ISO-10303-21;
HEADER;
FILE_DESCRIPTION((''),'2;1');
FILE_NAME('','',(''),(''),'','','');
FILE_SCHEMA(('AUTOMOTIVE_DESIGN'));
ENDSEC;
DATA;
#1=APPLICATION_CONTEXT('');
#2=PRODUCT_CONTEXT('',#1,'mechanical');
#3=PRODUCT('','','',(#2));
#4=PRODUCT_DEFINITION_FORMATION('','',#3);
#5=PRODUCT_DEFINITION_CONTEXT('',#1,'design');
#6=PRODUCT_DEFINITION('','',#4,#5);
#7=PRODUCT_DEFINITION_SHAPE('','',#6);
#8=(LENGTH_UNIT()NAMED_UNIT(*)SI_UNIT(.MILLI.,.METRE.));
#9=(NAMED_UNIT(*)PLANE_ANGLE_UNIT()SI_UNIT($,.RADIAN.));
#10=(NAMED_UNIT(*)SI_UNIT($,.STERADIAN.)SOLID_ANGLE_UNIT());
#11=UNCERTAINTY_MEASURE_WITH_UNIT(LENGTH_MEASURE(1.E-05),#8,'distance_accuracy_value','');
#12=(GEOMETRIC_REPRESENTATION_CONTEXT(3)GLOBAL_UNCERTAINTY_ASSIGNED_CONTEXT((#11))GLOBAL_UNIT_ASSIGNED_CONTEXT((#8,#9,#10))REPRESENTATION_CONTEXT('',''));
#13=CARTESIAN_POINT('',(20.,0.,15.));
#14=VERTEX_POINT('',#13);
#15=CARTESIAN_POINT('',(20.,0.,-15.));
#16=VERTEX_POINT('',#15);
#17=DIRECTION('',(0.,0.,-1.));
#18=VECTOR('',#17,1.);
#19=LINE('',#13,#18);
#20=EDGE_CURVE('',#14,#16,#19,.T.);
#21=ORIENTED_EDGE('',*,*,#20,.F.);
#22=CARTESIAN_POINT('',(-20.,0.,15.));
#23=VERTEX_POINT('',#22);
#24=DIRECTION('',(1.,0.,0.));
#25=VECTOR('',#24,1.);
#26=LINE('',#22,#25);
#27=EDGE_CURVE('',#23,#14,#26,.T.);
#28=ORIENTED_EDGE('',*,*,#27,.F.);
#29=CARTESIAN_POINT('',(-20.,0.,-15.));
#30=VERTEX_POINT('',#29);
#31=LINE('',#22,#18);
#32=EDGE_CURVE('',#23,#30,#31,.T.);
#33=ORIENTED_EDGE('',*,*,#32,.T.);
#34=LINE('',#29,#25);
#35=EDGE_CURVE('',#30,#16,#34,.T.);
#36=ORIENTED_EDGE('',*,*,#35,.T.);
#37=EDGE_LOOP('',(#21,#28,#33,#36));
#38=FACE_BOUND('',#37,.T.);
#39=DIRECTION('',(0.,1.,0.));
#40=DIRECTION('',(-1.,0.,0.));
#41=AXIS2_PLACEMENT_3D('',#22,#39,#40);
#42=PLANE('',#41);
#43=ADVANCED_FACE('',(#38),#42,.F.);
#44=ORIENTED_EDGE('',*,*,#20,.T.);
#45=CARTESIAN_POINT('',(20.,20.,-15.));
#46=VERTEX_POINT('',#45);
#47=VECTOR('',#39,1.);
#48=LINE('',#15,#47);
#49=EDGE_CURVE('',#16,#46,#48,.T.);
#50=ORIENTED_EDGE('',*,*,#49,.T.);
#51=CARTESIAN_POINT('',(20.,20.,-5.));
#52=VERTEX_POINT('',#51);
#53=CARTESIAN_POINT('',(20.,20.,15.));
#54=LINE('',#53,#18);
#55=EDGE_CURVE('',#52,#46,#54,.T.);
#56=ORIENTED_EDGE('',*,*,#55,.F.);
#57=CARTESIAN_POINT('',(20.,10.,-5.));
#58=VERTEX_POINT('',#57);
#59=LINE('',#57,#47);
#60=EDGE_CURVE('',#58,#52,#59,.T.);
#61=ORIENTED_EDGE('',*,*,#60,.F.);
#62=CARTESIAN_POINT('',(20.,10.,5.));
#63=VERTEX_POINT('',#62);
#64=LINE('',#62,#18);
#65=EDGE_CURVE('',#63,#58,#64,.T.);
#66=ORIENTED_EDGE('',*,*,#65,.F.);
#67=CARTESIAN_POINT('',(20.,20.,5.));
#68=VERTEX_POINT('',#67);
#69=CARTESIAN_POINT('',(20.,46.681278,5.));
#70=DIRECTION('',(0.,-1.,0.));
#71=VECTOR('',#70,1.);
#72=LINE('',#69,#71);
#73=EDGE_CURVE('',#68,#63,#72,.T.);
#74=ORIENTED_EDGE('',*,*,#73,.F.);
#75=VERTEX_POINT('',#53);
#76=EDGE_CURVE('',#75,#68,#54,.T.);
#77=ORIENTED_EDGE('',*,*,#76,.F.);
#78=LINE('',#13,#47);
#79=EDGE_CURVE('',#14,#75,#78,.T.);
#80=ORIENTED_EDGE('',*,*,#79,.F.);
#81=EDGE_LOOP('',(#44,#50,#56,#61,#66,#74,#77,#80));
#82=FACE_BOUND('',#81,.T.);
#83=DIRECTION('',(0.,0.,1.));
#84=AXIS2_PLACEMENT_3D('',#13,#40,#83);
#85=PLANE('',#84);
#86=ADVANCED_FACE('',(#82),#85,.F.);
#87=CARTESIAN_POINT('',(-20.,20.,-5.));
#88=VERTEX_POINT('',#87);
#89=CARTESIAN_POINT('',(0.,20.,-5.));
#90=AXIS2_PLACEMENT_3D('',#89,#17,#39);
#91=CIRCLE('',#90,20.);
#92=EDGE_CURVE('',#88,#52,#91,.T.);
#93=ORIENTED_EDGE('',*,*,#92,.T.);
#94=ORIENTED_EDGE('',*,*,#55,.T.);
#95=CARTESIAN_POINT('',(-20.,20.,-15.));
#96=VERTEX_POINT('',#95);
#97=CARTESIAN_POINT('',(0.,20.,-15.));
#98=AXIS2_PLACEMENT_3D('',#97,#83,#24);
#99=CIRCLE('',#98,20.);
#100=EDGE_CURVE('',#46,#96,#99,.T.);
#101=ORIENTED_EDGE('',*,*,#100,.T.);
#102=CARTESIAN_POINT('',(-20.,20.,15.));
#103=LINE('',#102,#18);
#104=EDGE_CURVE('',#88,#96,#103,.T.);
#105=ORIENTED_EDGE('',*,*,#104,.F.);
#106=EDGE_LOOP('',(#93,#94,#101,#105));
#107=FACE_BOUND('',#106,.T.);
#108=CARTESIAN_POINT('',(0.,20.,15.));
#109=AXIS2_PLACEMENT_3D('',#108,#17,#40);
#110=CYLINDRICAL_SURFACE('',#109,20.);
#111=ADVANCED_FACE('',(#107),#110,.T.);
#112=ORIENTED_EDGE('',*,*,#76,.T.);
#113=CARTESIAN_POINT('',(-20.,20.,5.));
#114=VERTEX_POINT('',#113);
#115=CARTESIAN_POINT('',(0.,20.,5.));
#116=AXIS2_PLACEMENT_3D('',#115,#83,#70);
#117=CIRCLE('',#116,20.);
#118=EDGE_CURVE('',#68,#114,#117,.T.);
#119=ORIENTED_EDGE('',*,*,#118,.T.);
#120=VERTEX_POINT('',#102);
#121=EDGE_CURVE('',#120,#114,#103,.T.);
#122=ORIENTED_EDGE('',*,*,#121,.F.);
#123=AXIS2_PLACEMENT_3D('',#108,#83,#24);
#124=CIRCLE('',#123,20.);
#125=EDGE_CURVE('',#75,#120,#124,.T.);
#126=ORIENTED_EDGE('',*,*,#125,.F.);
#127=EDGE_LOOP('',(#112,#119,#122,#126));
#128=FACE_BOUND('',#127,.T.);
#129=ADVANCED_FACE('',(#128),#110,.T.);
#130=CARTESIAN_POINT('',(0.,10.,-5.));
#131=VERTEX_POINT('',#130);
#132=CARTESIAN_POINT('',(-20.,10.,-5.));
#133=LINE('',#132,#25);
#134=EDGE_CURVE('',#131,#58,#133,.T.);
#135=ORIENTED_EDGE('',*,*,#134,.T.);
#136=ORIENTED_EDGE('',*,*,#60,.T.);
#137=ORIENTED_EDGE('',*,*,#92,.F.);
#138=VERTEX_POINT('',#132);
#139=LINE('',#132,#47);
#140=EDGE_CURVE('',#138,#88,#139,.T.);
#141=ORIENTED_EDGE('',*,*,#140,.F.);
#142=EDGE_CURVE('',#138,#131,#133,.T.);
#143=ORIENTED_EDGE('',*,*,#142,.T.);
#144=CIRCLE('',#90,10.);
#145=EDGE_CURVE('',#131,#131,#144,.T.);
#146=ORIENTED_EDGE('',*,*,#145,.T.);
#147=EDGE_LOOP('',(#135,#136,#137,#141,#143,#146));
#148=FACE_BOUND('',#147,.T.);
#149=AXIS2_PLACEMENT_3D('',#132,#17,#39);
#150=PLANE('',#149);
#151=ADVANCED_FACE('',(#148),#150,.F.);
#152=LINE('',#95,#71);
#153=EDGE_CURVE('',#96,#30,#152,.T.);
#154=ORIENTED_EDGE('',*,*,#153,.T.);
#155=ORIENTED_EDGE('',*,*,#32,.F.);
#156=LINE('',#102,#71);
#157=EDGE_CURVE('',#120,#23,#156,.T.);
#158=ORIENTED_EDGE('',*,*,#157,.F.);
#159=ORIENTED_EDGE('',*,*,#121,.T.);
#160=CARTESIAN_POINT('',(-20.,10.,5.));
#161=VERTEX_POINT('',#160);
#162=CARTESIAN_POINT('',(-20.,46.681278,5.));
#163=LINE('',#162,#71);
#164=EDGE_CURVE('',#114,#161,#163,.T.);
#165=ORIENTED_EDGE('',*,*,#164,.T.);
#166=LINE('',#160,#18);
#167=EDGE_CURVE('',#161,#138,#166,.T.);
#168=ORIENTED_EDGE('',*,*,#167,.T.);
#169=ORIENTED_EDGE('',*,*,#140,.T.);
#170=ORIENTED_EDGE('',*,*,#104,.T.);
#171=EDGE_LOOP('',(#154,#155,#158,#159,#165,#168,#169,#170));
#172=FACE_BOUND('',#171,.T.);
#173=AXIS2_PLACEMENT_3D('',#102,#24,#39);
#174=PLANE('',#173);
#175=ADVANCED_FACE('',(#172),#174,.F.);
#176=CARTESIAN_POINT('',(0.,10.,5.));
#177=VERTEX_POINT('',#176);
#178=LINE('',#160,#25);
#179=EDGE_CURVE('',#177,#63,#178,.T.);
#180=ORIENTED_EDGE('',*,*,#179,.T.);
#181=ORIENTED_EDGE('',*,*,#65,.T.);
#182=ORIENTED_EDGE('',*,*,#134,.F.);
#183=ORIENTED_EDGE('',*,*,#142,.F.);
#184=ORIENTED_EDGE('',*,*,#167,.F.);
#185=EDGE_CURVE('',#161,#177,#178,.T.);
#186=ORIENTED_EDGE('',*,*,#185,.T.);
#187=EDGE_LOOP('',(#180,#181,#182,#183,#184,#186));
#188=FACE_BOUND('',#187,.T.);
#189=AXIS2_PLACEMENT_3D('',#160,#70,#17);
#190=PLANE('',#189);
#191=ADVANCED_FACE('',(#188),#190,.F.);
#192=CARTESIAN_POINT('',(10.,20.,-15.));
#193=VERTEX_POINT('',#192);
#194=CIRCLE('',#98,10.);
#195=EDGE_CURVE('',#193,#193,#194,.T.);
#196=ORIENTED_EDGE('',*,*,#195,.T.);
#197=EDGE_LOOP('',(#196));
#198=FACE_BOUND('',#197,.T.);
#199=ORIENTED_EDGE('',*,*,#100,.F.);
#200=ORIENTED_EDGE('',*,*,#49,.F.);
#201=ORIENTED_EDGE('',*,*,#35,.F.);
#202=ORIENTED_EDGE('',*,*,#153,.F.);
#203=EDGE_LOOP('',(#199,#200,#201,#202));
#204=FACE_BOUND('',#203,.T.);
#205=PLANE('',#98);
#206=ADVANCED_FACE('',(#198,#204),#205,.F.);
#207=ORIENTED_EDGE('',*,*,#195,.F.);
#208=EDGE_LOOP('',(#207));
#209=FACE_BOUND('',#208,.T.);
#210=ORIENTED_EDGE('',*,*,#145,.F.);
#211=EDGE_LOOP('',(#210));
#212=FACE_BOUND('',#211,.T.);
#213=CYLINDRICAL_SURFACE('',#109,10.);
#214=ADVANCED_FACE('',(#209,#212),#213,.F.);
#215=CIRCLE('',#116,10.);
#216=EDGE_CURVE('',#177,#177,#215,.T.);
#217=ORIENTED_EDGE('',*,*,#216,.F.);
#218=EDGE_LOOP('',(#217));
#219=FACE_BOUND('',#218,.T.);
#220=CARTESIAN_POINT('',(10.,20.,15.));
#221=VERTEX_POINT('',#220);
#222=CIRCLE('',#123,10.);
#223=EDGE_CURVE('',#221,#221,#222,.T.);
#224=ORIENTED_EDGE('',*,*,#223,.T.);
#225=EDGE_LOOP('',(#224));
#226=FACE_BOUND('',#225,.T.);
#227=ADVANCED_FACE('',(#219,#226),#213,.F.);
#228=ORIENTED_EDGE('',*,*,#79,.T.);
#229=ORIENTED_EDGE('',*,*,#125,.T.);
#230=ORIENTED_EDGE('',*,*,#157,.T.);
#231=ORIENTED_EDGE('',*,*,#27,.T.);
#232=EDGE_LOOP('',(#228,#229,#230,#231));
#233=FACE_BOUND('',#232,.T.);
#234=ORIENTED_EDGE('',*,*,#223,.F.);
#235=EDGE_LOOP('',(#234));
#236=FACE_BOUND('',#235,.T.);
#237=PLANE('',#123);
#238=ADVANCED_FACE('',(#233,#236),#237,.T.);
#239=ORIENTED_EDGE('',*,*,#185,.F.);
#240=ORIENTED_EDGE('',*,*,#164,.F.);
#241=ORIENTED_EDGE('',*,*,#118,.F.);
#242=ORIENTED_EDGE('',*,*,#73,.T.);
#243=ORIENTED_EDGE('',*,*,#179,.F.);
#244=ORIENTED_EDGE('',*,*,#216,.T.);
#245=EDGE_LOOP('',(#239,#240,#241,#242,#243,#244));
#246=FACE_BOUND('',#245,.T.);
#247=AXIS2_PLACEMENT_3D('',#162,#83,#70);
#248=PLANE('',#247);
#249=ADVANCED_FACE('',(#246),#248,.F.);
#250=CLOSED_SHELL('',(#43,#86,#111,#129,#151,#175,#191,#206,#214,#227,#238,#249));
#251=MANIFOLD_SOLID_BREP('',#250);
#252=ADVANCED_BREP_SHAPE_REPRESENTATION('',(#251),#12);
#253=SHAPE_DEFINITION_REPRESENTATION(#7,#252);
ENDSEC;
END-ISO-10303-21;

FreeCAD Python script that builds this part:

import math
import FreeCAD as App
import Part
import Sketcher
Q = App.Units.Quantity


def add_polygon(sketch, points):
    """Adds a closed chain of lines whose ends are joined by coincident constraints."""
    first, n = sketch.GeometryCount, len(points)
    for a, b in zip(points, points[1:] + points[:1]):
        sketch.addGeometry(Part.LineSegment(App.Vector(*a, 0), App.Vector(*b, 0)), False)
    for i in range(n):
        sketch.addConstraint(Sketcher.Constraint("Coincident", first + i, 2, first + (i + 1) % n, 1))

doc = App.newDocument("Part")
params = doc.addObject("Spreadsheet::Sheet", "Params")
for row, (alias, value) in enumerate([
    ("sketch1_diameter", "20 mm"),
    ("sketch1_radius", "20 mm"),
    ("sketch1_height", "20 mm"),
    ("pad1_length", "30 mm"),
    ("sketch2_height", "10 mm"),
], start=1):
    params.set(f"A{row}", alias)
    params.set(f"B{row}", "=" + value)
    params.setAlias(f"B{row}", alias)

body = doc.addObject("PartDesign::Body", "Body")

sketch1 = doc.addObject("Sketcher::SketchObject", "Sketch")
body.addObject(sketch1)
sketch1.AttachmentSupport = (doc.XY_Plane, [""])
sketch1.MapMode = "FlatFace"
sketch1.addGeometry([
    Part.LineSegment(App.Vector(-20, 0, 0), App.Vector(20, 0, 0)),
    Part.LineSegment(App.Vector(20, 0, 0), App.Vector(20, 20, 0)),
    Part.ArcOfCircle(Part.Circle(App.Vector(0, 20, 0), App.Vector(0, 0, 1), 20), math.radians(0), math.radians(180)),
    Part.LineSegment(App.Vector(-20, 20, 0), App.Vector(-20, 0, 0)),
    Part.Circle(App.Vector(0, 20, 0), App.Vector(0, 0, 1), 10),
], False)
sketch1.addConstraint([
    Sketcher.Constraint("Coincident", 0, 2, 1, 1),
    Sketcher.Constraint("Tangent", 1, 2, 2, 1),
    Sketcher.Constraint("Tangent", 2, 2, 3, 1),
    Sketcher.Constraint("Coincident", 3, 2, 0, 1),
    Sketcher.Constraint("Horizontal", 0),
    Sketcher.Constraint("Vertical", 1),
    Sketcher.Constraint("Vertical", 3),
    Sketcher.Constraint("Coincident", 4, 3, 2, 3),
    Sketcher.Constraint("Symmetric", 0, 2, 3, 2, -1, 1),
    Sketcher.Constraint("Diameter", 4, Q("20 mm")),
    Sketcher.Constraint("Radius", 2, Q("20 mm")),
    Sketcher.Constraint("DistanceY", 1, 1, 1, 2, Q("20 mm")),
])
sketch1.setExpression("Constraints[9]", "Params.sketch1_diameter")
sketch1.setExpression("Constraints[10]", "Params.sketch1_radius")
sketch1.setExpression("Constraints[11]", "Params.sketch1_height")
pad1 = doc.addObject("PartDesign::Pad", "Pad")
body.addObject(pad1)
pad1.Profile = sketch1
pad1.setExpression("Length", "Params.pad1_length")
pad1.Midplane = True

sketch2 = doc.addObject("Sketcher::SketchObject", "Sketch001")
body.addObject(sketch2)
sketch2.AttachmentSupport = (doc.YZ_Plane, [""])
sketch2.MapMode = "FlatFace"
sketch2.AttachmentOffset = App.Placement(App.Vector(0, 0, 20), App.Rotation())
add_polygon(sketch2, [(47, 5), (10, 5), (10, -5), (47, -5)])
sketch2.addConstraint([
    Sketcher.Constraint("Horizontal", 0),
    Sketcher.Constraint("Vertical", 1),
    Sketcher.Constraint("Horizontal", 2),
    Sketcher.Constraint("Vertical", 3),
    Sketcher.Constraint("DistanceY", 1, 2, 1, 1, Q("10 mm")),
    Sketcher.Constraint("DistanceX", -1, 1, 0, 2, Q("10 mm")),
    Sketcher.Constraint("DistanceY", -1, 1, 0, 2, Q("5 mm")),
    Sketcher.Constraint("DistanceX", 0, 2, 0, 1, Q("36.681278 mm")),
])
sketch2.setExpression("Constraints[8]", "Params.sketch2_height")
pocket1 = doc.addObject("PartDesign::Pocket", "Pocket")
body.addObject(pocket1)
pocket1.Profile = sketch2
pocket1.Type = "ThroughAll"

doc.recompute()
